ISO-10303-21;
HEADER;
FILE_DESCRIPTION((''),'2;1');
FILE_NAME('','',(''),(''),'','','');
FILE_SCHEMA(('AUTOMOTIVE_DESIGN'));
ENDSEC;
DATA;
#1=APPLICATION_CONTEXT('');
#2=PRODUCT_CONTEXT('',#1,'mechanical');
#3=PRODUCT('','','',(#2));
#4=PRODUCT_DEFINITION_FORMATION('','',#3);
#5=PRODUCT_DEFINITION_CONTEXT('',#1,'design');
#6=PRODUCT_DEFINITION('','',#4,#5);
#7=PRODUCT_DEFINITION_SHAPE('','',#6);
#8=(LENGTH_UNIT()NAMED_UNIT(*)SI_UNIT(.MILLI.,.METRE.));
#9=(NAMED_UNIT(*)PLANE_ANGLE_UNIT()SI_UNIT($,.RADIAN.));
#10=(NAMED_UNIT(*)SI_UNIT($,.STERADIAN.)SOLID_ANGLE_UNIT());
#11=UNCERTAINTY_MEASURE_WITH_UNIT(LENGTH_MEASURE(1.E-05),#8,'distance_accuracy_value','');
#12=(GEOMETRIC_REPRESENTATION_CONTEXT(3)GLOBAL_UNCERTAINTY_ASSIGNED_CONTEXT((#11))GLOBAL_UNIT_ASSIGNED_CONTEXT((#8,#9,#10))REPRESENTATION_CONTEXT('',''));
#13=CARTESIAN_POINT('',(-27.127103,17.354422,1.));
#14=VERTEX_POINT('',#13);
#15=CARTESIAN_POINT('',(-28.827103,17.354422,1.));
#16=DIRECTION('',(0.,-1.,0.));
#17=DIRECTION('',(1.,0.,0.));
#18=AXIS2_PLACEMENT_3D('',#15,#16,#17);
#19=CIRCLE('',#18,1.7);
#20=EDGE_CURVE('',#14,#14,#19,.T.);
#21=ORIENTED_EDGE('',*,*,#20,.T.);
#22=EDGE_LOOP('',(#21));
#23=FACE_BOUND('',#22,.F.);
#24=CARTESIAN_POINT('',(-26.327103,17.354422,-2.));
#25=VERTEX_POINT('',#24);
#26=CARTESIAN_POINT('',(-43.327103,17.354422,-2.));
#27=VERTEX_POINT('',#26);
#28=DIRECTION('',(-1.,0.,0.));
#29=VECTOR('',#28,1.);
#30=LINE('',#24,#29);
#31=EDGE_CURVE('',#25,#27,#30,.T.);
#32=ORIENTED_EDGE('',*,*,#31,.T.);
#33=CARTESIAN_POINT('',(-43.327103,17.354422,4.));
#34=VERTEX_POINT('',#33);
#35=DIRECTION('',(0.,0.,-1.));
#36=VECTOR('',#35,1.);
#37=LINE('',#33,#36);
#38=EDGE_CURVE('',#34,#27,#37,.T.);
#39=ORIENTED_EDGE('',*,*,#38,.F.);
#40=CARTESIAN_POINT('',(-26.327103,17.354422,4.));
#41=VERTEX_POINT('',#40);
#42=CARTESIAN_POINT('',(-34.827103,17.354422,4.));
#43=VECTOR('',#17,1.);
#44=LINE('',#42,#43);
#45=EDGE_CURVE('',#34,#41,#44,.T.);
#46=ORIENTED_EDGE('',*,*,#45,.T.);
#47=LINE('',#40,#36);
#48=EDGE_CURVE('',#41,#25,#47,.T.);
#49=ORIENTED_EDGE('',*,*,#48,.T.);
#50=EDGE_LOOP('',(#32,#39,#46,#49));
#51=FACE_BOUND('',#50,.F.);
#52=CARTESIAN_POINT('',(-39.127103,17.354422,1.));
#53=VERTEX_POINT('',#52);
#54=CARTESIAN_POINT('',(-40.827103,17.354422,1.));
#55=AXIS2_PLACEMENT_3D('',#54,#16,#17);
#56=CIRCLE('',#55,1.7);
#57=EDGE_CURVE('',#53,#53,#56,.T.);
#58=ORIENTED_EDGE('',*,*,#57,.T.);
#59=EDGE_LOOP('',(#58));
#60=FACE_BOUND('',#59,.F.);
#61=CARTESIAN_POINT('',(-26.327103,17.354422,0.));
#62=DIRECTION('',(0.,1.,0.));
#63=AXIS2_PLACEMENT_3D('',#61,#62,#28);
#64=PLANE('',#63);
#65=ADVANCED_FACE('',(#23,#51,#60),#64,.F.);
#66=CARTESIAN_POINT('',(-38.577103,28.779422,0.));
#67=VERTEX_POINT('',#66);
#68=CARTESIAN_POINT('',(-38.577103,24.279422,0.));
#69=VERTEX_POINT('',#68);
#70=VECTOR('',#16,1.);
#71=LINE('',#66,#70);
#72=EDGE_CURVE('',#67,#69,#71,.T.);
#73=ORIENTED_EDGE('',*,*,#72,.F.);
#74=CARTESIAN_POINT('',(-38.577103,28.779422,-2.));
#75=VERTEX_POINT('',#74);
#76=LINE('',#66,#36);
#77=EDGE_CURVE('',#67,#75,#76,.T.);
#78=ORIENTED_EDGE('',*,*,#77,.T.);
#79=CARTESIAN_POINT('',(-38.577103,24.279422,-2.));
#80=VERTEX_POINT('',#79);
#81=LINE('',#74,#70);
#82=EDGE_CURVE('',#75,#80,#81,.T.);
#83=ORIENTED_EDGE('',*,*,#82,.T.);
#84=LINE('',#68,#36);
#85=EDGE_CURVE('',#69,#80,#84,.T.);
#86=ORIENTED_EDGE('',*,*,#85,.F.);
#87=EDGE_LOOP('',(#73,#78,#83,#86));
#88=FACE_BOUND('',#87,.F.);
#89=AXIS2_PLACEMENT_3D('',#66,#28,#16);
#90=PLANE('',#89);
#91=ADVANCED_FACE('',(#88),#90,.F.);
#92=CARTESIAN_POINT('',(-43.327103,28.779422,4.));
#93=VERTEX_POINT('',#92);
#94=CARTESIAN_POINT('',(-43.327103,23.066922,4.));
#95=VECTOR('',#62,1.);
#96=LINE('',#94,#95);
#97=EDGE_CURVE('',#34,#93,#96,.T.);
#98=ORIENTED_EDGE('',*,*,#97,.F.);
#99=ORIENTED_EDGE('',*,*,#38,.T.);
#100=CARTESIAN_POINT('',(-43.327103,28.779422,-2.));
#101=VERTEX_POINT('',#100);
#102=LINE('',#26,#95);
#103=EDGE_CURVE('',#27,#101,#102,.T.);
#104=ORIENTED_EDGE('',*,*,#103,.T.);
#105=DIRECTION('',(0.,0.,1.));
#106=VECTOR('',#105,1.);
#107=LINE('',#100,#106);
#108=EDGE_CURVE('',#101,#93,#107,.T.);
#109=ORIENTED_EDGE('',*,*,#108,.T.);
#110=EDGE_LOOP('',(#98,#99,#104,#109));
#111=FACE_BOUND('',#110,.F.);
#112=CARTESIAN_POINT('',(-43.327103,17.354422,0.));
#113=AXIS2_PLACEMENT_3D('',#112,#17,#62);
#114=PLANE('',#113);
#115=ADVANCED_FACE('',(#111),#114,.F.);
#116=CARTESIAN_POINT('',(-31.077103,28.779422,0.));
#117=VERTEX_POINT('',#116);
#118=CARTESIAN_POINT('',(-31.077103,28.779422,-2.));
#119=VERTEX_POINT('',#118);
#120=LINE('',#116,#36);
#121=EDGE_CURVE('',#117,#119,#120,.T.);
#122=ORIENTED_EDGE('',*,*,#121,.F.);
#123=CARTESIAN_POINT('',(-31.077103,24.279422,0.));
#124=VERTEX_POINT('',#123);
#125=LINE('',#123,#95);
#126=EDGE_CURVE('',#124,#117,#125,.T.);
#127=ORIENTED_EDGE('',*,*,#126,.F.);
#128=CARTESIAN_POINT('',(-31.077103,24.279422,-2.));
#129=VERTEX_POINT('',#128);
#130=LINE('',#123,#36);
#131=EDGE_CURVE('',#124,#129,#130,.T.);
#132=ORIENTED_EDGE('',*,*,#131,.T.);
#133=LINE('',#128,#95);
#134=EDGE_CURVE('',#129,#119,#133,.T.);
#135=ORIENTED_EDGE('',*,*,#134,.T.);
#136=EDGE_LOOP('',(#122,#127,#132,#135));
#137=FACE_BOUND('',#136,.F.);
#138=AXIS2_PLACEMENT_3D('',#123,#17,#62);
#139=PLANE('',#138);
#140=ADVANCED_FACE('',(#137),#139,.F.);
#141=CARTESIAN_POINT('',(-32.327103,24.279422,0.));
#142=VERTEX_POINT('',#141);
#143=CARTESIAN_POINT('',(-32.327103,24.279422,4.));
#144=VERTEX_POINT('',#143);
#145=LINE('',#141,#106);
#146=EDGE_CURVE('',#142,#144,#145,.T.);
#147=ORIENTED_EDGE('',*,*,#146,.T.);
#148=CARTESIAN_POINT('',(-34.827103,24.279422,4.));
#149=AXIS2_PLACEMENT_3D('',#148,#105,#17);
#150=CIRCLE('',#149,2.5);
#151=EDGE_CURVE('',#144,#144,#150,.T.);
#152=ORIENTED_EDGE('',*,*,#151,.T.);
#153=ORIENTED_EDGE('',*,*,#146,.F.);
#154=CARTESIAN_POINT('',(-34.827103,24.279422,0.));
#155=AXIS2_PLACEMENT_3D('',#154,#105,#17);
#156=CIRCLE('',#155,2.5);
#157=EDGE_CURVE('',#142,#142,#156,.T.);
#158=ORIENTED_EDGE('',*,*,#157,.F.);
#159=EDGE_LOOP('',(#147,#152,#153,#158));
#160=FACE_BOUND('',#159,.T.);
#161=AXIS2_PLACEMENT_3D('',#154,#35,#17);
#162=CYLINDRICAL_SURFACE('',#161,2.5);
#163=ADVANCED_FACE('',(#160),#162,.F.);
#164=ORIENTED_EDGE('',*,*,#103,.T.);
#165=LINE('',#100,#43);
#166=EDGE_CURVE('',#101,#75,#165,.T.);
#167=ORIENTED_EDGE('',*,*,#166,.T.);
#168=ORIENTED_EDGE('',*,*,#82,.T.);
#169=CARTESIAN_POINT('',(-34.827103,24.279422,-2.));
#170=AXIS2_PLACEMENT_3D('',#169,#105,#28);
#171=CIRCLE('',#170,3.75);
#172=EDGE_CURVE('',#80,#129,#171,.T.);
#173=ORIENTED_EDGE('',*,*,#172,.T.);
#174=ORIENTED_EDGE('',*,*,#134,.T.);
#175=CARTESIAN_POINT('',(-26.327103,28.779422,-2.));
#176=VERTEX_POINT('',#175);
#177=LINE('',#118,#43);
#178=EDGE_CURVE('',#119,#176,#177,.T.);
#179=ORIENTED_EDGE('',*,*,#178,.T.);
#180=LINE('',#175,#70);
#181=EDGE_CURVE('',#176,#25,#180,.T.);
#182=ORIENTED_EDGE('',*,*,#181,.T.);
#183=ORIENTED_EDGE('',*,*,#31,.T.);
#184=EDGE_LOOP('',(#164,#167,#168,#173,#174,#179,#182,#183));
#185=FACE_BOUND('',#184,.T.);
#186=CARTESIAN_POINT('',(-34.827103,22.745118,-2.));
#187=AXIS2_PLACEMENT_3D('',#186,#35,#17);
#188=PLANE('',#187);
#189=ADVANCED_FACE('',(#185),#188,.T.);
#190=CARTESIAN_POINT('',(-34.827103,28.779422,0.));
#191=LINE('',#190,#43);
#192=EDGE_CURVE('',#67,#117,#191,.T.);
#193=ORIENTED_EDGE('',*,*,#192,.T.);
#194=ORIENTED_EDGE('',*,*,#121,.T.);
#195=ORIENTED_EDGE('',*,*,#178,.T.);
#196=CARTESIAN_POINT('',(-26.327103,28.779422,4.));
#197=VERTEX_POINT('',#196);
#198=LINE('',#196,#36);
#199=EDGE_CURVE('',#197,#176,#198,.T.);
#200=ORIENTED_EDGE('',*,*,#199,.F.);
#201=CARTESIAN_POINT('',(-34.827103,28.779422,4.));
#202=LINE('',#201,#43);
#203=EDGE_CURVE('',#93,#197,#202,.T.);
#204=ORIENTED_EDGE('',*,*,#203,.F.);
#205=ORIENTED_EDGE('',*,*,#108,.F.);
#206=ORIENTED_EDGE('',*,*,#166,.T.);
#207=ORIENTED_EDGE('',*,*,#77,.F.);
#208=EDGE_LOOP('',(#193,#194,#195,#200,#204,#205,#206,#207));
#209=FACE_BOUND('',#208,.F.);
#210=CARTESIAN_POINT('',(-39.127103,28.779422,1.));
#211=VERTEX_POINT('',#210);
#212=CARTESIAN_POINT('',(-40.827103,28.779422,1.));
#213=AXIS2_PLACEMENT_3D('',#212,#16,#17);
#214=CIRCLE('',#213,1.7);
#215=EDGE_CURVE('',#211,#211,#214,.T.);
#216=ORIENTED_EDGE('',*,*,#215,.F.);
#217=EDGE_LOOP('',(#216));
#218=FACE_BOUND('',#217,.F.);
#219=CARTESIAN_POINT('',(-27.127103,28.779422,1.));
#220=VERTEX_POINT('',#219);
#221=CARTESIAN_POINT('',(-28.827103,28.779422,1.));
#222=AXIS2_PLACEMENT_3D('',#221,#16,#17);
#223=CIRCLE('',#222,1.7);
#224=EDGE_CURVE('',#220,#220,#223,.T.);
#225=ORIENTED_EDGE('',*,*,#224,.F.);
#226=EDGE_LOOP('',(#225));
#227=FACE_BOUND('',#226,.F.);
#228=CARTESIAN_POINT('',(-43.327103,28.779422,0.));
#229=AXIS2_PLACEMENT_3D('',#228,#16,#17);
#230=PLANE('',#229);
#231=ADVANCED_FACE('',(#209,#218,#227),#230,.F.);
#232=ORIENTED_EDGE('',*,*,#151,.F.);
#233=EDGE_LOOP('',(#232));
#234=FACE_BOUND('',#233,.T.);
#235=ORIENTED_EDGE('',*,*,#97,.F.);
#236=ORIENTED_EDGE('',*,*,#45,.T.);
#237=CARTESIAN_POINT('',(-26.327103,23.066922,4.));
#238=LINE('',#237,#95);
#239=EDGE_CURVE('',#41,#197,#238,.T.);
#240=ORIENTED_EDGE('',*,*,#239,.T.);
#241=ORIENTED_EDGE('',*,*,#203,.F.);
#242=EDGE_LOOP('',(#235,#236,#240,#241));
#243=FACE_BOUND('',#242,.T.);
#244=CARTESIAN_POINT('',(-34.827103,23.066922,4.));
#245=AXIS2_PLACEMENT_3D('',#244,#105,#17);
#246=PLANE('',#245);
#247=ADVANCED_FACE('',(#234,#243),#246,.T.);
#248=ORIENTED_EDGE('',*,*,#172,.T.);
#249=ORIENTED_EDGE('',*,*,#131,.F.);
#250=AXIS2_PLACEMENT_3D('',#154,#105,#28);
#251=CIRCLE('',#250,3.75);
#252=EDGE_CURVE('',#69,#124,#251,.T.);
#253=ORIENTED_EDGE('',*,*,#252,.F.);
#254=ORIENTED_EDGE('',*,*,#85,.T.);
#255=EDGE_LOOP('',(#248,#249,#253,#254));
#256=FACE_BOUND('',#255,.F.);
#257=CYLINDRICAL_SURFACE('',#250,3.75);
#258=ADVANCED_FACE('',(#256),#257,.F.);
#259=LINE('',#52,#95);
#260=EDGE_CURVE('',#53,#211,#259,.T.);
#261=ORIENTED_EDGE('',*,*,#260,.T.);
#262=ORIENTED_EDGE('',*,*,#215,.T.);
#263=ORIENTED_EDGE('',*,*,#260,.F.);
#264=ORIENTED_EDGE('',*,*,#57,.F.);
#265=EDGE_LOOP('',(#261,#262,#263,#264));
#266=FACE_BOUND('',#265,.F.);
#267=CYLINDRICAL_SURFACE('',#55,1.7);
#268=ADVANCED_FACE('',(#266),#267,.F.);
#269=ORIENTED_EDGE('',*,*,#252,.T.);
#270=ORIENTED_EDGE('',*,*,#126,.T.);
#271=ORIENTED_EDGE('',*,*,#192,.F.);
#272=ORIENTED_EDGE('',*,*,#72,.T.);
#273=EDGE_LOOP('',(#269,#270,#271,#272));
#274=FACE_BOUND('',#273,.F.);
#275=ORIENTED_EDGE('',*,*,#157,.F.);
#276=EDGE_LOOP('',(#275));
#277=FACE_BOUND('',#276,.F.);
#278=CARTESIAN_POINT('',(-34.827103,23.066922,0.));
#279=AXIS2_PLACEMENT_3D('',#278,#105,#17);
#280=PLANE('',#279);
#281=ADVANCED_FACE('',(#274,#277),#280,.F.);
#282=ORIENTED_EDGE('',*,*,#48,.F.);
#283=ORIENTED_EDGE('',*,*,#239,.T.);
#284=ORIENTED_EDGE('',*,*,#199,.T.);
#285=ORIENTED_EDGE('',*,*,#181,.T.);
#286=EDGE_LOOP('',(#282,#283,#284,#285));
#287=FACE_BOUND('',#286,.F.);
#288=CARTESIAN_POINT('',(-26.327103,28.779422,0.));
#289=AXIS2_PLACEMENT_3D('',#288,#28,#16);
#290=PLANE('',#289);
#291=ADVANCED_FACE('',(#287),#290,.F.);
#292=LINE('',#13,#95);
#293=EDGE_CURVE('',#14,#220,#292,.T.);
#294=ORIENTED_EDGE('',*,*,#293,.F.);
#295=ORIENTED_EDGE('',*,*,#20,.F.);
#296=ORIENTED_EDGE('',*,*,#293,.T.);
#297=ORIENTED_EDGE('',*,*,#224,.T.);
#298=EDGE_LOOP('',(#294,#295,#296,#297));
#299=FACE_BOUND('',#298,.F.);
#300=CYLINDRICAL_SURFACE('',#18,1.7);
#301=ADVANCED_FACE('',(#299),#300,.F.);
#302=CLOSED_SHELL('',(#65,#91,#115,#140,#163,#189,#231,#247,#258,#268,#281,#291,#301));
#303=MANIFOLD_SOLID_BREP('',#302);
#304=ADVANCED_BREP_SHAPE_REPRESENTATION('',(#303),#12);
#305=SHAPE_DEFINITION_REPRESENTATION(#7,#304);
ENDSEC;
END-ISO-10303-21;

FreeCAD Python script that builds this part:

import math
import FreeCAD as App
import Part
import Sketcher


def add_polygon(sketch, points):
    """Adds a closed chain of lines whose ends are joined by coincident constraints."""
    first, n = sketch.GeometryCount, len(points)
    for a, b in zip(points, points[1:] + points[:1]):
        sketch.addGeometry(Part.LineSegment(App.Vector(*a, 0), App.Vector(*b, 0)), False)
    for i in range(n):
        sketch.addConstraint(Sketcher.Constraint("Coincident", first + i, 2, first + (i + 1) % n, 1))

doc = App.newDocument("Part")
body = doc.addObject("PartDesign::Body", "Body")

sketch1 = doc.addObject("Sketcher::SketchObject", "Sketch")
body.addObject(sketch1)
sketch1.AttachmentSupport = (doc.XY_Plane, [""])
sketch1.MapMode = "FlatFace"
add_polygon(sketch1, [(-43.3, 28.8), (-43.3, 17.4), (-26.3, 17.4), (-26.3, 28.8)])
sketch1.addGeometry(Part.Circle(App.Vector(-34.8, 24.3, 0), App.Vector(0, 0, 1), 2.5), False)
sketch1.addConstraint([
    Sketcher.Constraint("Vertical", 0),
    Sketcher.Constraint("Horizontal", 1),
    Sketcher.Constraint("Vertical", 2),
    Sketcher.Constraint("Horizontal", 3),
    Sketcher.Constraint("Diameter", 4, 5.0),
    Sketcher.Constraint("DistanceX", 1, 1, 1, 2, 17.0),
    Sketcher.Constraint("DistanceX", 0, 2, 4, 3, 8.5),
    Sketcher.Constraint("DistanceY", 4, 3, 2, 2, 4.5),
    Sketcher.Constraint("DistanceY", 0, 2, 0, 1, 11.425),
    Sketcher.Constraint("DistanceY", -1, 1, 0, 2, 17.354422),
    Sketcher.Constraint("DistanceX", 4, 3, -1, 1, 34.827103),
])
pad1 = doc.addObject("PartDesign::Pad", "Pad")
body.addObject(pad1)
pad1.Profile = sketch1
pad1.Length = 4

sketch2 = doc.addObject("Sketcher::SketchObject", "Sketch001")
body.addObject(sketch2)
sketch2.AttachmentSupport = (doc.XY_Plane, [""])
sketch2.MapMode = "FlatFace"
sketch2.addGeometry([
    Part.ArcOfCircle(Part.Circle(App.Vector(-34.8, 24.3, 0), App.Vector(0, 0, 1), 3.8), math.radians(180), math.radians(360)),
    Part.LineSegment(App.Vector(-31.1, 24.3, 0), App.Vector(-31.1, 28.8, 0)),
    Part.LineSegment(App.Vector(-31.1, 28.8, 0), App.Vector(-26.3, 28.8, 0)),
    Part.LineSegment(App.Vector(-26.3, 28.8, 0), App.Vector(-26.3, 17.4, 0)),
    Part.LineSegment(App.Vector(-26.3, 17.4, 0), App.Vector(-43.3, 17.4, 0)),
    Part.LineSegment(App.Vector(-43.3, 17.4, 0), App.Vector(-43.3, 28.8, 0)),
    Part.LineSegment(App.Vector(-43.3, 28.8, 0), App.Vector(-38.6, 28.8, 0)),
    Part.LineSegment(App.Vector(-38.6, 28.8, 0), App.Vector(-38.6, 24.3, 0)),
], False)
sketch2.addConstraint([
    Sketcher.Constraint("Tangent", 0, 2, 1, 1),
    Sketcher.Constraint("Coincident", 1, 2, 2, 1),
    Sketcher.Constraint("Coincident", 2, 2, 3, 1),
    Sketcher.Constraint("Coincident", 3, 2, 4, 1),
    Sketcher.Constraint("Coincident", 4, 2, 5, 1),
    Sketcher.Constraint("Coincident", 5, 2, 6, 1),
    Sketcher.Constraint("Coincident", 6, 2, 7, 1),
    Sketcher.Constraint("Tangent", 7, 2, 0, 1),
    Sketcher.Constraint("Vertical", 1),
    Sketcher.Constraint("Horizontal", 2),
    Sketcher.Constraint("Vertical", 3),
    Sketcher.Constraint("Horizontal", 4),
    Sketcher.Constraint("Vertical", 5),
    Sketcher.Constraint("Horizontal", 6),
    Sketcher.Constraint("Vertical", 7),
    Sketcher.Constraint("Horizontal", 2, 2, 5, 2),
    Sketcher.Constraint("Equal", 2, 6),
    Sketcher.Constraint("DistanceX", 4, 2, 4, 1, 17.0),
    Sketcher.Constraint("Radius", 0, 3.75),
    Sketcher.Constraint("DistanceY", 1, 1, 1, 2, 4.5),
    Sketcher.Constraint("DistanceY", 3, 2, 3, 1, 11.425),
    Sketcher.Constraint("DistanceY", -1, 1, 3, 2, 17.354422),
    Sketcher.Constraint("DistanceX", 0, 3, -1, 1, 34.827103),
])
pad2 = doc.addObject("PartDesign::Pad", "Pad001")
body.addObject(pad2)
pad2.Profile = sketch2
pad2.Length = 2
pad2.Reversed = True

sketch3 = doc.addObject("Sketcher::SketchObject", "Sketch002")
body.addObject(sketch3)
sketch3.AttachmentSupport = (doc.XZ_Plane, [""])
sketch3.MapMode = "FlatFace"
sketch3.AttachmentOffset = App.Placement(App.Vector(0, 0, -17.354422), App.Rotation())
sketch3.addGeometry([
    Part.Circle(App.Vector(-28.8, 1, 0), App.Vector(0, 0, 1), 1.7),
    Part.Circle(App.Vector(-40.8, 1, 0), App.Vector(0, 0, 1), 1.7),
], False)
sketch3.addConstraint([
    Sketcher.Constraint("Equal", 0, 1),
    Sketcher.Constraint("Horizontal", 0, 3, 1, 3),
    Sketcher.Constraint("Diameter", 0, 3.4),
    Sketcher.Constraint("DistanceY", -1, 1, 0, 3, 1.0),
    Sketcher.Constraint("DistanceX", 1, 3, 0, 3, 12.0),
    Sketcher.Constraint("DistanceX", 0, 3, -1, 1, 28.827103),
])
pocket1 = doc.addObject("PartDesign::Pocket", "Pocket")
body.addObject(pocket1)
pocket1.Profile = sketch3
pocket1.Type = "ThroughAll"

doc.recompute()
